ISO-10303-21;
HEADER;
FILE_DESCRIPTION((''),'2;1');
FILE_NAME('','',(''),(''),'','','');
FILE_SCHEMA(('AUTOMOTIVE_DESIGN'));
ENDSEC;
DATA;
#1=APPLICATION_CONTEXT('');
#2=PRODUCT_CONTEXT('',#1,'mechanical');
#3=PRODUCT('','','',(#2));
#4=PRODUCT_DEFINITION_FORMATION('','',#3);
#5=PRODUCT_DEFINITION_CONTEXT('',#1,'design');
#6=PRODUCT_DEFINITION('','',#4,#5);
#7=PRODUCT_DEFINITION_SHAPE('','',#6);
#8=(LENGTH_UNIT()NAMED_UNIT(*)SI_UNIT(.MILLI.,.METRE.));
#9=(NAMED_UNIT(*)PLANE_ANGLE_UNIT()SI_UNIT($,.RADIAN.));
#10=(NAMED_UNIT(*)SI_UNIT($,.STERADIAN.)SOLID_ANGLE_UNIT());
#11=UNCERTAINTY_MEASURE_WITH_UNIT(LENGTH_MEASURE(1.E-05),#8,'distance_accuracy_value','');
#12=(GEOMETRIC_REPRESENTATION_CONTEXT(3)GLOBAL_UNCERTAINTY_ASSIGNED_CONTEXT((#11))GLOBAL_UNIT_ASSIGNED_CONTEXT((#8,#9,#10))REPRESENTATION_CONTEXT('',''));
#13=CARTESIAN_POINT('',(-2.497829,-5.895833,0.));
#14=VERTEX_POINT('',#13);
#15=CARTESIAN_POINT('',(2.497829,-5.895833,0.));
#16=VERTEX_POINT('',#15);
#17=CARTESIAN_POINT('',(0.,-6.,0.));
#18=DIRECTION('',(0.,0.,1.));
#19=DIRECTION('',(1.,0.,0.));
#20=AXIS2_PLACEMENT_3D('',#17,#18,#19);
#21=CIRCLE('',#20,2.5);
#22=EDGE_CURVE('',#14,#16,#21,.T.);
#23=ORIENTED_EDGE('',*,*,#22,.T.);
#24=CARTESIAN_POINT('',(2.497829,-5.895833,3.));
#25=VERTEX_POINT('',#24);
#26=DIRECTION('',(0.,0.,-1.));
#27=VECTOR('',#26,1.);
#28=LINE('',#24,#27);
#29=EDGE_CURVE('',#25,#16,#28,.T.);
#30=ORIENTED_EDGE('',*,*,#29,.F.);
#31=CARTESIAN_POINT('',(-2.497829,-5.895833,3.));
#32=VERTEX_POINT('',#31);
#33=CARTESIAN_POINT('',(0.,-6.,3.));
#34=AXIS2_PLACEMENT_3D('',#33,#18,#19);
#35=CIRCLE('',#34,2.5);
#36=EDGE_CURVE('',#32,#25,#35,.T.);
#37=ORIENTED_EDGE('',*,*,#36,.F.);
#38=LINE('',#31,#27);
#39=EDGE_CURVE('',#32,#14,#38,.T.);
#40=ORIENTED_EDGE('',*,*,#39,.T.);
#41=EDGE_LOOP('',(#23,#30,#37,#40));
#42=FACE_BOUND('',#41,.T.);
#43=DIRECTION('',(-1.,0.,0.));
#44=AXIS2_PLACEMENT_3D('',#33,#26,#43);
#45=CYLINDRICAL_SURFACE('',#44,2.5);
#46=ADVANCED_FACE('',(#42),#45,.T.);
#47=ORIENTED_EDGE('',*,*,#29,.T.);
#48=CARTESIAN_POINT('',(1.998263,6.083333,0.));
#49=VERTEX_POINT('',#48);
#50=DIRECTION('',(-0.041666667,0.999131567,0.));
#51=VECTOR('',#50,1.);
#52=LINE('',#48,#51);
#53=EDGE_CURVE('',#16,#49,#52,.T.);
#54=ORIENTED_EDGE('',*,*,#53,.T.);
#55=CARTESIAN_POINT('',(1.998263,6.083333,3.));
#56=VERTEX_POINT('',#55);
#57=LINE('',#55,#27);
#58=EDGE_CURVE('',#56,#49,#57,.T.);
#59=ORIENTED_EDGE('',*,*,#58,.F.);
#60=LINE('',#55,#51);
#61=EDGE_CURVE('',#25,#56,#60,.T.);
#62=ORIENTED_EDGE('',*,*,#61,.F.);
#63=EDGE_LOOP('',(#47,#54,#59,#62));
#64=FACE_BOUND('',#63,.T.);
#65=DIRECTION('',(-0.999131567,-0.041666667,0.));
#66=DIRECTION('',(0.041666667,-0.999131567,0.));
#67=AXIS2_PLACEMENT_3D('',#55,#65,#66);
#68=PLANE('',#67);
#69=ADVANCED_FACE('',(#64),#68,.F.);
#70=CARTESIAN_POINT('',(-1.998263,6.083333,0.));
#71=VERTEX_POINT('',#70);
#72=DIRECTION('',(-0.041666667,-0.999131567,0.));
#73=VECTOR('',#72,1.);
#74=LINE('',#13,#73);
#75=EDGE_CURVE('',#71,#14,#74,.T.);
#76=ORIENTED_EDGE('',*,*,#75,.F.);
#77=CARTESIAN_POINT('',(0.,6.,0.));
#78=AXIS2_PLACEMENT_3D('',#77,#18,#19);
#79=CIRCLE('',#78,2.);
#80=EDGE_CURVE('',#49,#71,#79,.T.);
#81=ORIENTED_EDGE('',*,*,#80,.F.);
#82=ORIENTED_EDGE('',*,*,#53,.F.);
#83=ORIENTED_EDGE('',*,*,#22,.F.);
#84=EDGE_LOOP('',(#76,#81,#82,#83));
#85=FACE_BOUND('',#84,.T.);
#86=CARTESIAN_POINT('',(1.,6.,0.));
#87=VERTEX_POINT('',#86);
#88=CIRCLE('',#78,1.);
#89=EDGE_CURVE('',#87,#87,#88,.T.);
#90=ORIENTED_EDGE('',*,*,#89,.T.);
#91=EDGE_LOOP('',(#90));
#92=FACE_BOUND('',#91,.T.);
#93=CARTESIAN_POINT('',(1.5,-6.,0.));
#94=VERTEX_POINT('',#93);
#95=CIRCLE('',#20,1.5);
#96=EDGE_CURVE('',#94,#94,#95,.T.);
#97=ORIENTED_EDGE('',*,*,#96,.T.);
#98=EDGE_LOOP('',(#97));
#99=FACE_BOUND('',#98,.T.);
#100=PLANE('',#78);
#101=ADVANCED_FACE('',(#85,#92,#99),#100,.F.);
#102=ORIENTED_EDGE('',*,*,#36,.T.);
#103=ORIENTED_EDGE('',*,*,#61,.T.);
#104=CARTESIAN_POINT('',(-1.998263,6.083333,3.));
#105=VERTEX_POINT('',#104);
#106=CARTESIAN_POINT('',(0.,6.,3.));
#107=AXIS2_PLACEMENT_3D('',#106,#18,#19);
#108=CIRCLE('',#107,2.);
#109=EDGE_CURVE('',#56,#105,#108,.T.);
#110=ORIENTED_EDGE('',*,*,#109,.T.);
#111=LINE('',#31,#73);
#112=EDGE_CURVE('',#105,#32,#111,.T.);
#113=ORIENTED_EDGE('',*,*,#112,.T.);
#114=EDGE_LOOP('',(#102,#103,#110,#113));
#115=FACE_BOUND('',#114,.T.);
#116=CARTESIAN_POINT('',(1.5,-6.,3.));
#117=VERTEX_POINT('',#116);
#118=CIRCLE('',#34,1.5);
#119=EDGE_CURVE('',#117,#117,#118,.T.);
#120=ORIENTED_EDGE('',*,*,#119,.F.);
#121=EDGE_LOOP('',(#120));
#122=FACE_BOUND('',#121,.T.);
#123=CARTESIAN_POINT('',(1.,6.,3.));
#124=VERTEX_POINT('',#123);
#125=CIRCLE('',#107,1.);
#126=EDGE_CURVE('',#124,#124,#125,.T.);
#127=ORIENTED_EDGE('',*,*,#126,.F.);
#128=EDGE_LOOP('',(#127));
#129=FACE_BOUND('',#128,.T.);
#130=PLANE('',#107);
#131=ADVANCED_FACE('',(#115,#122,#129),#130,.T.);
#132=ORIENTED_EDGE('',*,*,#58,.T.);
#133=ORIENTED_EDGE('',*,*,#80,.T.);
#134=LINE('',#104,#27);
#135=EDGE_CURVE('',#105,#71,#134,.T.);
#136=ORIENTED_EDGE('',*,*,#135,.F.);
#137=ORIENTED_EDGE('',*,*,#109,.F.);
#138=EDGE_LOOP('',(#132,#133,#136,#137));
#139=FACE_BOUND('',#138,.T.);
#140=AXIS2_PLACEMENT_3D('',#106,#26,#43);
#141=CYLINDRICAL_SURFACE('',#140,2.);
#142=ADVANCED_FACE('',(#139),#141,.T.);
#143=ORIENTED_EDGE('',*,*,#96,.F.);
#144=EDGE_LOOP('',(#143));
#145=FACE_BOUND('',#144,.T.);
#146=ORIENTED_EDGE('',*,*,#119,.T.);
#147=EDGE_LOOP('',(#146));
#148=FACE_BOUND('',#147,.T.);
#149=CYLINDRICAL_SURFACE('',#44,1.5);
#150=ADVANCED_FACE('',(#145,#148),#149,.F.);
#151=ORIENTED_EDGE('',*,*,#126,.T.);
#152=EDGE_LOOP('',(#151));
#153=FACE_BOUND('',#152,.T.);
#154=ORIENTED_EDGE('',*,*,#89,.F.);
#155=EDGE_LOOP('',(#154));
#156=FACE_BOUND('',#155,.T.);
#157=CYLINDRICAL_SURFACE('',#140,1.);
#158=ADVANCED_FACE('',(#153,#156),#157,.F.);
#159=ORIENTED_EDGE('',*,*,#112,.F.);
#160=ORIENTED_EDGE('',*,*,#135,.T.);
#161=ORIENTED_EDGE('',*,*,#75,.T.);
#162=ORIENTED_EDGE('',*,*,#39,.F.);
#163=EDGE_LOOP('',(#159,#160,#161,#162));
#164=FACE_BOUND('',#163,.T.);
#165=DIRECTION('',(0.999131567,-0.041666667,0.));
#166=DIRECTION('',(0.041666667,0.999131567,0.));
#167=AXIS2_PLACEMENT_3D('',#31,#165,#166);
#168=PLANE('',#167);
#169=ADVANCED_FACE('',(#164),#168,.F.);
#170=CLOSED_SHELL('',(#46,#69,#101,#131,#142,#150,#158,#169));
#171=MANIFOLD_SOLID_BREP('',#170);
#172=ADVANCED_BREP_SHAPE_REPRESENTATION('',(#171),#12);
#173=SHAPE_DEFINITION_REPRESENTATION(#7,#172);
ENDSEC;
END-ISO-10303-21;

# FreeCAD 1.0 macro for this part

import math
import FreeCAD as App
import Part
import Sketcher

doc = App.newDocument("Part")
body = doc.addObject("PartDesign::Body", "Body")

sketch1 = doc.addObject("Sketcher::SketchObject", "Sketch")
body.addObject(sketch1)
sketch1.AttachmentSupport = (doc.XY_Plane, [""])
sketch1.MapMode = "FlatFace"
sketch1.addGeometry(Part.LineSegment(App.Vector(2.5, -5.9, 0), App.Vector(2, 6.1, 0)), False)
sketch1.addGeometry(Part.ArcOfCircle(Part.Circle(App.Vector(0, 6, 0), App.Vector(0, 0, 1), 2), math.radians(2), math.radians(178)), False)
sketch1.addGeometry(Part.LineSegment(App.Vector(-2, 6.1, 0), App.Vector(-2.5, -5.9, 0)), False)
sketch1.addGeometry(Part.ArcOfCircle(Part.Circle(App.Vector(0, -6, 0), App.Vector(0, 0, 1), 2.5), math.radians(178), math.radians(362)), False)
sketch1.addGeometry(Part.Circle(App.Vector(0, -6, 0), App.Vector(0, 0, 1), 1.5), False)
sketch1.addGeometry(Part.Circle(App.Vector(0, 6, 0), App.Vector(0, 0, 1), 1), False)
sketch1.addConstraint(Sketcher.Constraint("Tangent", 0, 2, 1, 1))
sketch1.addConstraint(Sketcher.Constraint("Tangent", 1, 2, 2, 1))
sketch1.addConstraint(Sketcher.Constraint("Tangent", 2, 2, 3, 1))
sketch1.addConstraint(Sketcher.Constraint("Tangent", 3, 2, 0, 1))
sketch1.addConstraint(Sketcher.Constraint("Coincident", 4, 3, 3, 3))
sketch1.addConstraint(Sketcher.Constraint("Coincident", 5, 3, 1, 3))
sketch1.addConstraint(Sketcher.Constraint("Symmetric", 1, 3, 3, 3, -1, 1))
sketch1.addConstraint(Sketcher.Constraint("PointOnObject", 1, 3, -2))
sketch1.addConstraint(Sketcher.Constraint("Diameter", 4, 3.0))
sketch1.addConstraint(Sketcher.Constraint("Diameter", 5, 2.0))
sketch1.addConstraint(Sketcher.Constraint("Radius", 1, 2.0))
sketch1.addConstraint(Sketcher.Constraint("Radius", 3, 2.5))
sketch1.addConstraint(Sketcher.Constraint("DistanceY", -1, 1, 1, 3, 6.0))
pad1 = doc.addObject("PartDesign::Pad", "Pad")
body.addObject(pad1)
pad1.Profile = sketch1
pad1.Length = 3

doc.recompute()
